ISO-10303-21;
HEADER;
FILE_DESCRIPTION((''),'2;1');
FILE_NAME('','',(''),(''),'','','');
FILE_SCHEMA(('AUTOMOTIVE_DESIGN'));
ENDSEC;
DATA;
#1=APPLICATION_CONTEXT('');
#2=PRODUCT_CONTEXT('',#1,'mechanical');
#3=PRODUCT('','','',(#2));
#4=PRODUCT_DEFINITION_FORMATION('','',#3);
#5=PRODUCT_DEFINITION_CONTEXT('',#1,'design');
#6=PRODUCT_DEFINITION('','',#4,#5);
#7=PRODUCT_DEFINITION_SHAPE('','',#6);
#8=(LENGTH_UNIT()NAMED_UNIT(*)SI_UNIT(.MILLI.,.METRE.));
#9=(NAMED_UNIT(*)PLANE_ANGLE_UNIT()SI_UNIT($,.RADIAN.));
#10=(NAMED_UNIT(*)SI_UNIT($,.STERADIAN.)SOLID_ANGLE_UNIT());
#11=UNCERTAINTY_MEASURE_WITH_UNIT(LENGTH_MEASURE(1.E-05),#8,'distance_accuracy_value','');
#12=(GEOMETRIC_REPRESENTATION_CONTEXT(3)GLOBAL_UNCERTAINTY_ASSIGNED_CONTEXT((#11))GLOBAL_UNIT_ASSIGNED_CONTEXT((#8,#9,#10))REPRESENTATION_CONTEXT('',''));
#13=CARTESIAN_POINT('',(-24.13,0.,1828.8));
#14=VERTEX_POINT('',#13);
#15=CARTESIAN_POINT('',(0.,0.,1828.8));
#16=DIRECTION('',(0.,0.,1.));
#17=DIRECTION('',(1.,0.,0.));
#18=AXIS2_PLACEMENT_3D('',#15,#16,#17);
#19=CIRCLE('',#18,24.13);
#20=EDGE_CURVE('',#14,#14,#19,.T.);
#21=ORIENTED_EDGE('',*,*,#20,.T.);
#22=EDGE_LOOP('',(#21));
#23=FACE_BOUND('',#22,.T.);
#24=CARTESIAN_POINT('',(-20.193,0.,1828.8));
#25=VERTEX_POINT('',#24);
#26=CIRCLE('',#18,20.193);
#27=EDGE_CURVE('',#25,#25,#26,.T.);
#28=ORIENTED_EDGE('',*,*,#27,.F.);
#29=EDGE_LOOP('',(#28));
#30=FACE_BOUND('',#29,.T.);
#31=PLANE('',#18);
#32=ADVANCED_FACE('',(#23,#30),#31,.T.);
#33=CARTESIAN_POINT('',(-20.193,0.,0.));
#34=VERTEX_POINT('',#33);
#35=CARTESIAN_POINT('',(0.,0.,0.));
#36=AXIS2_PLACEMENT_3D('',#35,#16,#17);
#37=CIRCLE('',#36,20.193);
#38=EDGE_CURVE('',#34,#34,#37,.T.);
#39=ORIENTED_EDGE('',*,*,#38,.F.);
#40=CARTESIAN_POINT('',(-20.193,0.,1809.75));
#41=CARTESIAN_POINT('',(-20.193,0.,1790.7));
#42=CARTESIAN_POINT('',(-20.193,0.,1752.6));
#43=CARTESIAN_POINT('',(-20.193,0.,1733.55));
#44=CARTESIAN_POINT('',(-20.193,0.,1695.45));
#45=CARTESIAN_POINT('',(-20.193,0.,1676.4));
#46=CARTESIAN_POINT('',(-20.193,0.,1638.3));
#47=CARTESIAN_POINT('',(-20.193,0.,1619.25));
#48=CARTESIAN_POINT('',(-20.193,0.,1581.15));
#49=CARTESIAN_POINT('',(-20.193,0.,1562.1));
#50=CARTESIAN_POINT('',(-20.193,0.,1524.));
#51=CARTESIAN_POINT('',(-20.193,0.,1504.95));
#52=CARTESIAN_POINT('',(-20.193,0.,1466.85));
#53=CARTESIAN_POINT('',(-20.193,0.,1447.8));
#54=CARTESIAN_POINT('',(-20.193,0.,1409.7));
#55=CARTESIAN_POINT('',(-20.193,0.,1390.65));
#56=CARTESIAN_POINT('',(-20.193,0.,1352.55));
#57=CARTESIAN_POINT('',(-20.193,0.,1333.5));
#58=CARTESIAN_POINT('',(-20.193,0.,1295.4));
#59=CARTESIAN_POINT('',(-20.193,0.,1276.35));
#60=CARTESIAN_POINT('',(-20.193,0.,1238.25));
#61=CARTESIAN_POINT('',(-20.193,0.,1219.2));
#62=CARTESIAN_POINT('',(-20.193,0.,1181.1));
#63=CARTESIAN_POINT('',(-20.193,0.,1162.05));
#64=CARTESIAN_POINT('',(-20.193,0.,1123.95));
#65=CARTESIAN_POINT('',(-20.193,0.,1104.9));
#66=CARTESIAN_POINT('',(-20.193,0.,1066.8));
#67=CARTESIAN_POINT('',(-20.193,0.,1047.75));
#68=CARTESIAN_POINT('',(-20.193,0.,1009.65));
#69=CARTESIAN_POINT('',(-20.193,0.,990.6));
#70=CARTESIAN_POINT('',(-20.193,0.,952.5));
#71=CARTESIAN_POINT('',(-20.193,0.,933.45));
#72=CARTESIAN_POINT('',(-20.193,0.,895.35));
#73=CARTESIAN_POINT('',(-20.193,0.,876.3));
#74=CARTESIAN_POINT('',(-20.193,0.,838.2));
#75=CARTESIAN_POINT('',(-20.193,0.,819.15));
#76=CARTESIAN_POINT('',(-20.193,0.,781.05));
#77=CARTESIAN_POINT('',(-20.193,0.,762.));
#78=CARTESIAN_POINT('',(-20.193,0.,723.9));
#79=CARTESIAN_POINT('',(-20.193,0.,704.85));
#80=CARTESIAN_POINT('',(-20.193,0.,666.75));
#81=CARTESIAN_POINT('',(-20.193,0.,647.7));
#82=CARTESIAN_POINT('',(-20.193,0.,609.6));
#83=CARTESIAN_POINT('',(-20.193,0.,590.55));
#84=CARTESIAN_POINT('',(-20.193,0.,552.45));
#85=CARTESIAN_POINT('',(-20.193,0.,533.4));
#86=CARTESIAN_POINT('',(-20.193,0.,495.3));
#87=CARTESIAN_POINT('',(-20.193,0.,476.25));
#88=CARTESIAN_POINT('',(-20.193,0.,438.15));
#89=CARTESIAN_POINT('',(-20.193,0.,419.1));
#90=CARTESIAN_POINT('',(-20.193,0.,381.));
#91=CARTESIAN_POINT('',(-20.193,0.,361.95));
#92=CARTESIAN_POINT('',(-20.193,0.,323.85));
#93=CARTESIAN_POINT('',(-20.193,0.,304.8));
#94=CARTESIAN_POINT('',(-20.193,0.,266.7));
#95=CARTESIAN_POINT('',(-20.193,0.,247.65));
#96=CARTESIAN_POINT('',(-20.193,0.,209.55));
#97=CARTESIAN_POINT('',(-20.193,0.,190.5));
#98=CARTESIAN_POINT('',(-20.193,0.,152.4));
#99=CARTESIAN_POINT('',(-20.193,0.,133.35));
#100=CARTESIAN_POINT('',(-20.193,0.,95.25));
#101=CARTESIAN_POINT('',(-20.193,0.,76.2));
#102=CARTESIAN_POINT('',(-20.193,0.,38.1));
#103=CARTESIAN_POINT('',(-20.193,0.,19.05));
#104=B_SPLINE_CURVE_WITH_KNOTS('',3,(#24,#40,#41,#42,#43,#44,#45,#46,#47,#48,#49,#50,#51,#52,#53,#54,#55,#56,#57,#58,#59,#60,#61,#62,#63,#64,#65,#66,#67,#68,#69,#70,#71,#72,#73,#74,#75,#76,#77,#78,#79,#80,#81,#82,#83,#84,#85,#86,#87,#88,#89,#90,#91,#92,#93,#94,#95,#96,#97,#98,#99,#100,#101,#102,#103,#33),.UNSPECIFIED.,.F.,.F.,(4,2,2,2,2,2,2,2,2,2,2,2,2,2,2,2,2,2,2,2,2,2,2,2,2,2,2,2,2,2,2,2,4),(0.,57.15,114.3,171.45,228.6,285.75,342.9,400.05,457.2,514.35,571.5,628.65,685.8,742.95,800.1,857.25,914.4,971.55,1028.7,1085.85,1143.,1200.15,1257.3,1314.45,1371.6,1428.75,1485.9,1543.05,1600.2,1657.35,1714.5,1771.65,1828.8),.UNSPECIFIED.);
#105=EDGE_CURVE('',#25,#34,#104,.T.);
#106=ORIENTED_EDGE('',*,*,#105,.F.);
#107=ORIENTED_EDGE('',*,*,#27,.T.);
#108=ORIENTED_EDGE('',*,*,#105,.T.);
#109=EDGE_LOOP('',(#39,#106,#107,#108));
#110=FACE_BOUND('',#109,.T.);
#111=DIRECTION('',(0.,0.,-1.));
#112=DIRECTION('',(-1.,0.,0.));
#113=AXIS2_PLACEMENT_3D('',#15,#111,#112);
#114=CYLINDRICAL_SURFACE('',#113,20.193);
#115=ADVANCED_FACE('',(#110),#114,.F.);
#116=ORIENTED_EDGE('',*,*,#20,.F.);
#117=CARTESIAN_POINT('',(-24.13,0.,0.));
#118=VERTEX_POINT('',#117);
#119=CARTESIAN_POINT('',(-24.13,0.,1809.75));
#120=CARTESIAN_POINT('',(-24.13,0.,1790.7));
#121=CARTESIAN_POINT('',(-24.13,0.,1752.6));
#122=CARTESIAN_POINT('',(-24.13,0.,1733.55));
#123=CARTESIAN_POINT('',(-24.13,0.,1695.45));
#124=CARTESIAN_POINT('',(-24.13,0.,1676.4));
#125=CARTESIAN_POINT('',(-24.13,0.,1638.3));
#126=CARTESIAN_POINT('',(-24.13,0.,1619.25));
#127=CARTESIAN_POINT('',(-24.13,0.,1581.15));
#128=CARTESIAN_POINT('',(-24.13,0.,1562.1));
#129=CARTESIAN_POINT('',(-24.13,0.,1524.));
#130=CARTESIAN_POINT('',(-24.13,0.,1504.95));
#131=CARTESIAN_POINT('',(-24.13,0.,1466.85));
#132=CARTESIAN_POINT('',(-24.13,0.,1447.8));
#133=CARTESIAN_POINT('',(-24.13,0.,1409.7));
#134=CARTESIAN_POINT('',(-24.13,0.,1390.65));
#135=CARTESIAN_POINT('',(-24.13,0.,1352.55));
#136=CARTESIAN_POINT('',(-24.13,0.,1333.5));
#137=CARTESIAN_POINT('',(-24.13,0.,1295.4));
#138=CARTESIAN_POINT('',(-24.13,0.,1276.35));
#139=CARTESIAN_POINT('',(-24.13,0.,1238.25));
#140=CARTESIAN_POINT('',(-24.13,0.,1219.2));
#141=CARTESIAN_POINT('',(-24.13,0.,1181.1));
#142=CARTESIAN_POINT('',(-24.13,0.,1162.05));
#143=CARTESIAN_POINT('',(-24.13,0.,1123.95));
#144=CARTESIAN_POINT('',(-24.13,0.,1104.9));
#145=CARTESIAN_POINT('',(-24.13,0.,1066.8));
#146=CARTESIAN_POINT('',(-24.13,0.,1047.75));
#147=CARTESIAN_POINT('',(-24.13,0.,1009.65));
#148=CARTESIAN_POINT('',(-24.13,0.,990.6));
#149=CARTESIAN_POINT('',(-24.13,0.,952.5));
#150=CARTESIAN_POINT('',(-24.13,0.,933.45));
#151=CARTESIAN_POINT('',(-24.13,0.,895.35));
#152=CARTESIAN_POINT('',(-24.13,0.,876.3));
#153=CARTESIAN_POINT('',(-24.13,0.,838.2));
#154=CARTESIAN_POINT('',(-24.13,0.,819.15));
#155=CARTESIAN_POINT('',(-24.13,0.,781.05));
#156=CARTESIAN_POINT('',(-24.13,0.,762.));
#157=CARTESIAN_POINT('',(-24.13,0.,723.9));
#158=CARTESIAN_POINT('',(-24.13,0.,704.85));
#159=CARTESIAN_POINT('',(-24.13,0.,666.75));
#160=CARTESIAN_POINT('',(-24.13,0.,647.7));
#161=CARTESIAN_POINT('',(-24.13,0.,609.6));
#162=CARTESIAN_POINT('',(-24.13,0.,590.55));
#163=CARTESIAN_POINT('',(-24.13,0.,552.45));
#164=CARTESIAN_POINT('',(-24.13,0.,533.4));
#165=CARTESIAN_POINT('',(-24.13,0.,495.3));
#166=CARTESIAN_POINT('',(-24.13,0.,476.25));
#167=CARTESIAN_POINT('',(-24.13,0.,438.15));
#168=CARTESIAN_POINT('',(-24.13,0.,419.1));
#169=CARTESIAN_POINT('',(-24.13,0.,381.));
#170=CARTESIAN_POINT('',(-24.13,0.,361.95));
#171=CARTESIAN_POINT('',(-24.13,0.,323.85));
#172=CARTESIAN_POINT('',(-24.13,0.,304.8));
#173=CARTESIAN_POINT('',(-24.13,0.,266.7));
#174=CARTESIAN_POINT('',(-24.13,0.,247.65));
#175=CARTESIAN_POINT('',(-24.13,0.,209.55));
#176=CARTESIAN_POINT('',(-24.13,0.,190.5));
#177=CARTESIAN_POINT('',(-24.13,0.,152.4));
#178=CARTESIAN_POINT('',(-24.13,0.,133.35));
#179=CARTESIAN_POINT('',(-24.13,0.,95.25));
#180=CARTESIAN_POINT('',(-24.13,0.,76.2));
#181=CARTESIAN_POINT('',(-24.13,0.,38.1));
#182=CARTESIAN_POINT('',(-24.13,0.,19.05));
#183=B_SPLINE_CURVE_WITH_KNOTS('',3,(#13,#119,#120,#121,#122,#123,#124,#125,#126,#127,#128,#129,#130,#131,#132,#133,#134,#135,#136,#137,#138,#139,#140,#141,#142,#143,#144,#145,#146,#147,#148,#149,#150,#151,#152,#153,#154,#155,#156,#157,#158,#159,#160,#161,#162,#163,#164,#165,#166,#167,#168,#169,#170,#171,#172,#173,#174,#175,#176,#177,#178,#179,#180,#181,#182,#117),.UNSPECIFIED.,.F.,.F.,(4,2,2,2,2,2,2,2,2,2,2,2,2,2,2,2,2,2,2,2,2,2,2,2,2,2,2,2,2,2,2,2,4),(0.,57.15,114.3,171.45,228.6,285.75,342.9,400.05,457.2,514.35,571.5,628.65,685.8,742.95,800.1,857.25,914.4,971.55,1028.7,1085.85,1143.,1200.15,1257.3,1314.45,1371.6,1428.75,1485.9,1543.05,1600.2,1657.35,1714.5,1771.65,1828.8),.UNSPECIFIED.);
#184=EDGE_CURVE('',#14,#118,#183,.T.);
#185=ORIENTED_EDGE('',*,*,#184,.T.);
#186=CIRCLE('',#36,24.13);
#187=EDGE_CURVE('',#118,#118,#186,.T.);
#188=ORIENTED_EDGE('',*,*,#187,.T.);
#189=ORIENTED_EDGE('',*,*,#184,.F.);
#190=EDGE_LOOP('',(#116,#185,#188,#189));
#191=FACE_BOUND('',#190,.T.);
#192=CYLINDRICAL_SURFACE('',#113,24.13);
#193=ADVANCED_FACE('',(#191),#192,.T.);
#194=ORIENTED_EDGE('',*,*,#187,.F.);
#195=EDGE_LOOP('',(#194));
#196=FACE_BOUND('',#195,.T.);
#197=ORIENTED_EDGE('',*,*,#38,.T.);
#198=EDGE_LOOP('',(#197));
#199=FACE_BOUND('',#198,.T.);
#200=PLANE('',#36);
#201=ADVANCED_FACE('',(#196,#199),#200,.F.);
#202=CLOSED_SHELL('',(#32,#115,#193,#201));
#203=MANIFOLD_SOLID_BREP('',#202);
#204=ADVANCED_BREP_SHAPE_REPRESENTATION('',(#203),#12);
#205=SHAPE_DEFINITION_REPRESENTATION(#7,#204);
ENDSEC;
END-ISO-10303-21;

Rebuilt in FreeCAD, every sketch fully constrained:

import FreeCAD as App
import Part
import Sketcher
from FreeCAD import Vector
Q = App.Units.Quantity

doc = App.newDocument("Part")
body = doc.addObject("PartDesign::Body", "Body")

sketch1 = body.newObject("Sketcher::SketchObject", "Sketch")
sketch1.AttachmentSupport = (doc.getObject("XY_Plane"), [""])
sketch1.MapMode = "FlatFace"
sketch1.addGeometry([
    Part.Circle(Vector(0, 0, 0), Vector(0, 0, 1), 24),
    Part.Circle(Vector(0, 0, 0), Vector(0, 0, 1), 20),
], False)
sketch1.addConstraint([
    Sketcher.Constraint("Coincident", 0, 3, -1, 1),
    Sketcher.Constraint("Coincident", 1, 3, -1, 1),
    Sketcher.Constraint("Diameter", 0, Q("1.9 in")),
    Sketcher.Constraint("Diameter", 1, Q("1.59 in")),
])
pad1 = body.newObject("PartDesign::Pad", "Pad")
pad1.Profile = sketch1
pad1.Length = Q("72 in")

doc.recompute()
